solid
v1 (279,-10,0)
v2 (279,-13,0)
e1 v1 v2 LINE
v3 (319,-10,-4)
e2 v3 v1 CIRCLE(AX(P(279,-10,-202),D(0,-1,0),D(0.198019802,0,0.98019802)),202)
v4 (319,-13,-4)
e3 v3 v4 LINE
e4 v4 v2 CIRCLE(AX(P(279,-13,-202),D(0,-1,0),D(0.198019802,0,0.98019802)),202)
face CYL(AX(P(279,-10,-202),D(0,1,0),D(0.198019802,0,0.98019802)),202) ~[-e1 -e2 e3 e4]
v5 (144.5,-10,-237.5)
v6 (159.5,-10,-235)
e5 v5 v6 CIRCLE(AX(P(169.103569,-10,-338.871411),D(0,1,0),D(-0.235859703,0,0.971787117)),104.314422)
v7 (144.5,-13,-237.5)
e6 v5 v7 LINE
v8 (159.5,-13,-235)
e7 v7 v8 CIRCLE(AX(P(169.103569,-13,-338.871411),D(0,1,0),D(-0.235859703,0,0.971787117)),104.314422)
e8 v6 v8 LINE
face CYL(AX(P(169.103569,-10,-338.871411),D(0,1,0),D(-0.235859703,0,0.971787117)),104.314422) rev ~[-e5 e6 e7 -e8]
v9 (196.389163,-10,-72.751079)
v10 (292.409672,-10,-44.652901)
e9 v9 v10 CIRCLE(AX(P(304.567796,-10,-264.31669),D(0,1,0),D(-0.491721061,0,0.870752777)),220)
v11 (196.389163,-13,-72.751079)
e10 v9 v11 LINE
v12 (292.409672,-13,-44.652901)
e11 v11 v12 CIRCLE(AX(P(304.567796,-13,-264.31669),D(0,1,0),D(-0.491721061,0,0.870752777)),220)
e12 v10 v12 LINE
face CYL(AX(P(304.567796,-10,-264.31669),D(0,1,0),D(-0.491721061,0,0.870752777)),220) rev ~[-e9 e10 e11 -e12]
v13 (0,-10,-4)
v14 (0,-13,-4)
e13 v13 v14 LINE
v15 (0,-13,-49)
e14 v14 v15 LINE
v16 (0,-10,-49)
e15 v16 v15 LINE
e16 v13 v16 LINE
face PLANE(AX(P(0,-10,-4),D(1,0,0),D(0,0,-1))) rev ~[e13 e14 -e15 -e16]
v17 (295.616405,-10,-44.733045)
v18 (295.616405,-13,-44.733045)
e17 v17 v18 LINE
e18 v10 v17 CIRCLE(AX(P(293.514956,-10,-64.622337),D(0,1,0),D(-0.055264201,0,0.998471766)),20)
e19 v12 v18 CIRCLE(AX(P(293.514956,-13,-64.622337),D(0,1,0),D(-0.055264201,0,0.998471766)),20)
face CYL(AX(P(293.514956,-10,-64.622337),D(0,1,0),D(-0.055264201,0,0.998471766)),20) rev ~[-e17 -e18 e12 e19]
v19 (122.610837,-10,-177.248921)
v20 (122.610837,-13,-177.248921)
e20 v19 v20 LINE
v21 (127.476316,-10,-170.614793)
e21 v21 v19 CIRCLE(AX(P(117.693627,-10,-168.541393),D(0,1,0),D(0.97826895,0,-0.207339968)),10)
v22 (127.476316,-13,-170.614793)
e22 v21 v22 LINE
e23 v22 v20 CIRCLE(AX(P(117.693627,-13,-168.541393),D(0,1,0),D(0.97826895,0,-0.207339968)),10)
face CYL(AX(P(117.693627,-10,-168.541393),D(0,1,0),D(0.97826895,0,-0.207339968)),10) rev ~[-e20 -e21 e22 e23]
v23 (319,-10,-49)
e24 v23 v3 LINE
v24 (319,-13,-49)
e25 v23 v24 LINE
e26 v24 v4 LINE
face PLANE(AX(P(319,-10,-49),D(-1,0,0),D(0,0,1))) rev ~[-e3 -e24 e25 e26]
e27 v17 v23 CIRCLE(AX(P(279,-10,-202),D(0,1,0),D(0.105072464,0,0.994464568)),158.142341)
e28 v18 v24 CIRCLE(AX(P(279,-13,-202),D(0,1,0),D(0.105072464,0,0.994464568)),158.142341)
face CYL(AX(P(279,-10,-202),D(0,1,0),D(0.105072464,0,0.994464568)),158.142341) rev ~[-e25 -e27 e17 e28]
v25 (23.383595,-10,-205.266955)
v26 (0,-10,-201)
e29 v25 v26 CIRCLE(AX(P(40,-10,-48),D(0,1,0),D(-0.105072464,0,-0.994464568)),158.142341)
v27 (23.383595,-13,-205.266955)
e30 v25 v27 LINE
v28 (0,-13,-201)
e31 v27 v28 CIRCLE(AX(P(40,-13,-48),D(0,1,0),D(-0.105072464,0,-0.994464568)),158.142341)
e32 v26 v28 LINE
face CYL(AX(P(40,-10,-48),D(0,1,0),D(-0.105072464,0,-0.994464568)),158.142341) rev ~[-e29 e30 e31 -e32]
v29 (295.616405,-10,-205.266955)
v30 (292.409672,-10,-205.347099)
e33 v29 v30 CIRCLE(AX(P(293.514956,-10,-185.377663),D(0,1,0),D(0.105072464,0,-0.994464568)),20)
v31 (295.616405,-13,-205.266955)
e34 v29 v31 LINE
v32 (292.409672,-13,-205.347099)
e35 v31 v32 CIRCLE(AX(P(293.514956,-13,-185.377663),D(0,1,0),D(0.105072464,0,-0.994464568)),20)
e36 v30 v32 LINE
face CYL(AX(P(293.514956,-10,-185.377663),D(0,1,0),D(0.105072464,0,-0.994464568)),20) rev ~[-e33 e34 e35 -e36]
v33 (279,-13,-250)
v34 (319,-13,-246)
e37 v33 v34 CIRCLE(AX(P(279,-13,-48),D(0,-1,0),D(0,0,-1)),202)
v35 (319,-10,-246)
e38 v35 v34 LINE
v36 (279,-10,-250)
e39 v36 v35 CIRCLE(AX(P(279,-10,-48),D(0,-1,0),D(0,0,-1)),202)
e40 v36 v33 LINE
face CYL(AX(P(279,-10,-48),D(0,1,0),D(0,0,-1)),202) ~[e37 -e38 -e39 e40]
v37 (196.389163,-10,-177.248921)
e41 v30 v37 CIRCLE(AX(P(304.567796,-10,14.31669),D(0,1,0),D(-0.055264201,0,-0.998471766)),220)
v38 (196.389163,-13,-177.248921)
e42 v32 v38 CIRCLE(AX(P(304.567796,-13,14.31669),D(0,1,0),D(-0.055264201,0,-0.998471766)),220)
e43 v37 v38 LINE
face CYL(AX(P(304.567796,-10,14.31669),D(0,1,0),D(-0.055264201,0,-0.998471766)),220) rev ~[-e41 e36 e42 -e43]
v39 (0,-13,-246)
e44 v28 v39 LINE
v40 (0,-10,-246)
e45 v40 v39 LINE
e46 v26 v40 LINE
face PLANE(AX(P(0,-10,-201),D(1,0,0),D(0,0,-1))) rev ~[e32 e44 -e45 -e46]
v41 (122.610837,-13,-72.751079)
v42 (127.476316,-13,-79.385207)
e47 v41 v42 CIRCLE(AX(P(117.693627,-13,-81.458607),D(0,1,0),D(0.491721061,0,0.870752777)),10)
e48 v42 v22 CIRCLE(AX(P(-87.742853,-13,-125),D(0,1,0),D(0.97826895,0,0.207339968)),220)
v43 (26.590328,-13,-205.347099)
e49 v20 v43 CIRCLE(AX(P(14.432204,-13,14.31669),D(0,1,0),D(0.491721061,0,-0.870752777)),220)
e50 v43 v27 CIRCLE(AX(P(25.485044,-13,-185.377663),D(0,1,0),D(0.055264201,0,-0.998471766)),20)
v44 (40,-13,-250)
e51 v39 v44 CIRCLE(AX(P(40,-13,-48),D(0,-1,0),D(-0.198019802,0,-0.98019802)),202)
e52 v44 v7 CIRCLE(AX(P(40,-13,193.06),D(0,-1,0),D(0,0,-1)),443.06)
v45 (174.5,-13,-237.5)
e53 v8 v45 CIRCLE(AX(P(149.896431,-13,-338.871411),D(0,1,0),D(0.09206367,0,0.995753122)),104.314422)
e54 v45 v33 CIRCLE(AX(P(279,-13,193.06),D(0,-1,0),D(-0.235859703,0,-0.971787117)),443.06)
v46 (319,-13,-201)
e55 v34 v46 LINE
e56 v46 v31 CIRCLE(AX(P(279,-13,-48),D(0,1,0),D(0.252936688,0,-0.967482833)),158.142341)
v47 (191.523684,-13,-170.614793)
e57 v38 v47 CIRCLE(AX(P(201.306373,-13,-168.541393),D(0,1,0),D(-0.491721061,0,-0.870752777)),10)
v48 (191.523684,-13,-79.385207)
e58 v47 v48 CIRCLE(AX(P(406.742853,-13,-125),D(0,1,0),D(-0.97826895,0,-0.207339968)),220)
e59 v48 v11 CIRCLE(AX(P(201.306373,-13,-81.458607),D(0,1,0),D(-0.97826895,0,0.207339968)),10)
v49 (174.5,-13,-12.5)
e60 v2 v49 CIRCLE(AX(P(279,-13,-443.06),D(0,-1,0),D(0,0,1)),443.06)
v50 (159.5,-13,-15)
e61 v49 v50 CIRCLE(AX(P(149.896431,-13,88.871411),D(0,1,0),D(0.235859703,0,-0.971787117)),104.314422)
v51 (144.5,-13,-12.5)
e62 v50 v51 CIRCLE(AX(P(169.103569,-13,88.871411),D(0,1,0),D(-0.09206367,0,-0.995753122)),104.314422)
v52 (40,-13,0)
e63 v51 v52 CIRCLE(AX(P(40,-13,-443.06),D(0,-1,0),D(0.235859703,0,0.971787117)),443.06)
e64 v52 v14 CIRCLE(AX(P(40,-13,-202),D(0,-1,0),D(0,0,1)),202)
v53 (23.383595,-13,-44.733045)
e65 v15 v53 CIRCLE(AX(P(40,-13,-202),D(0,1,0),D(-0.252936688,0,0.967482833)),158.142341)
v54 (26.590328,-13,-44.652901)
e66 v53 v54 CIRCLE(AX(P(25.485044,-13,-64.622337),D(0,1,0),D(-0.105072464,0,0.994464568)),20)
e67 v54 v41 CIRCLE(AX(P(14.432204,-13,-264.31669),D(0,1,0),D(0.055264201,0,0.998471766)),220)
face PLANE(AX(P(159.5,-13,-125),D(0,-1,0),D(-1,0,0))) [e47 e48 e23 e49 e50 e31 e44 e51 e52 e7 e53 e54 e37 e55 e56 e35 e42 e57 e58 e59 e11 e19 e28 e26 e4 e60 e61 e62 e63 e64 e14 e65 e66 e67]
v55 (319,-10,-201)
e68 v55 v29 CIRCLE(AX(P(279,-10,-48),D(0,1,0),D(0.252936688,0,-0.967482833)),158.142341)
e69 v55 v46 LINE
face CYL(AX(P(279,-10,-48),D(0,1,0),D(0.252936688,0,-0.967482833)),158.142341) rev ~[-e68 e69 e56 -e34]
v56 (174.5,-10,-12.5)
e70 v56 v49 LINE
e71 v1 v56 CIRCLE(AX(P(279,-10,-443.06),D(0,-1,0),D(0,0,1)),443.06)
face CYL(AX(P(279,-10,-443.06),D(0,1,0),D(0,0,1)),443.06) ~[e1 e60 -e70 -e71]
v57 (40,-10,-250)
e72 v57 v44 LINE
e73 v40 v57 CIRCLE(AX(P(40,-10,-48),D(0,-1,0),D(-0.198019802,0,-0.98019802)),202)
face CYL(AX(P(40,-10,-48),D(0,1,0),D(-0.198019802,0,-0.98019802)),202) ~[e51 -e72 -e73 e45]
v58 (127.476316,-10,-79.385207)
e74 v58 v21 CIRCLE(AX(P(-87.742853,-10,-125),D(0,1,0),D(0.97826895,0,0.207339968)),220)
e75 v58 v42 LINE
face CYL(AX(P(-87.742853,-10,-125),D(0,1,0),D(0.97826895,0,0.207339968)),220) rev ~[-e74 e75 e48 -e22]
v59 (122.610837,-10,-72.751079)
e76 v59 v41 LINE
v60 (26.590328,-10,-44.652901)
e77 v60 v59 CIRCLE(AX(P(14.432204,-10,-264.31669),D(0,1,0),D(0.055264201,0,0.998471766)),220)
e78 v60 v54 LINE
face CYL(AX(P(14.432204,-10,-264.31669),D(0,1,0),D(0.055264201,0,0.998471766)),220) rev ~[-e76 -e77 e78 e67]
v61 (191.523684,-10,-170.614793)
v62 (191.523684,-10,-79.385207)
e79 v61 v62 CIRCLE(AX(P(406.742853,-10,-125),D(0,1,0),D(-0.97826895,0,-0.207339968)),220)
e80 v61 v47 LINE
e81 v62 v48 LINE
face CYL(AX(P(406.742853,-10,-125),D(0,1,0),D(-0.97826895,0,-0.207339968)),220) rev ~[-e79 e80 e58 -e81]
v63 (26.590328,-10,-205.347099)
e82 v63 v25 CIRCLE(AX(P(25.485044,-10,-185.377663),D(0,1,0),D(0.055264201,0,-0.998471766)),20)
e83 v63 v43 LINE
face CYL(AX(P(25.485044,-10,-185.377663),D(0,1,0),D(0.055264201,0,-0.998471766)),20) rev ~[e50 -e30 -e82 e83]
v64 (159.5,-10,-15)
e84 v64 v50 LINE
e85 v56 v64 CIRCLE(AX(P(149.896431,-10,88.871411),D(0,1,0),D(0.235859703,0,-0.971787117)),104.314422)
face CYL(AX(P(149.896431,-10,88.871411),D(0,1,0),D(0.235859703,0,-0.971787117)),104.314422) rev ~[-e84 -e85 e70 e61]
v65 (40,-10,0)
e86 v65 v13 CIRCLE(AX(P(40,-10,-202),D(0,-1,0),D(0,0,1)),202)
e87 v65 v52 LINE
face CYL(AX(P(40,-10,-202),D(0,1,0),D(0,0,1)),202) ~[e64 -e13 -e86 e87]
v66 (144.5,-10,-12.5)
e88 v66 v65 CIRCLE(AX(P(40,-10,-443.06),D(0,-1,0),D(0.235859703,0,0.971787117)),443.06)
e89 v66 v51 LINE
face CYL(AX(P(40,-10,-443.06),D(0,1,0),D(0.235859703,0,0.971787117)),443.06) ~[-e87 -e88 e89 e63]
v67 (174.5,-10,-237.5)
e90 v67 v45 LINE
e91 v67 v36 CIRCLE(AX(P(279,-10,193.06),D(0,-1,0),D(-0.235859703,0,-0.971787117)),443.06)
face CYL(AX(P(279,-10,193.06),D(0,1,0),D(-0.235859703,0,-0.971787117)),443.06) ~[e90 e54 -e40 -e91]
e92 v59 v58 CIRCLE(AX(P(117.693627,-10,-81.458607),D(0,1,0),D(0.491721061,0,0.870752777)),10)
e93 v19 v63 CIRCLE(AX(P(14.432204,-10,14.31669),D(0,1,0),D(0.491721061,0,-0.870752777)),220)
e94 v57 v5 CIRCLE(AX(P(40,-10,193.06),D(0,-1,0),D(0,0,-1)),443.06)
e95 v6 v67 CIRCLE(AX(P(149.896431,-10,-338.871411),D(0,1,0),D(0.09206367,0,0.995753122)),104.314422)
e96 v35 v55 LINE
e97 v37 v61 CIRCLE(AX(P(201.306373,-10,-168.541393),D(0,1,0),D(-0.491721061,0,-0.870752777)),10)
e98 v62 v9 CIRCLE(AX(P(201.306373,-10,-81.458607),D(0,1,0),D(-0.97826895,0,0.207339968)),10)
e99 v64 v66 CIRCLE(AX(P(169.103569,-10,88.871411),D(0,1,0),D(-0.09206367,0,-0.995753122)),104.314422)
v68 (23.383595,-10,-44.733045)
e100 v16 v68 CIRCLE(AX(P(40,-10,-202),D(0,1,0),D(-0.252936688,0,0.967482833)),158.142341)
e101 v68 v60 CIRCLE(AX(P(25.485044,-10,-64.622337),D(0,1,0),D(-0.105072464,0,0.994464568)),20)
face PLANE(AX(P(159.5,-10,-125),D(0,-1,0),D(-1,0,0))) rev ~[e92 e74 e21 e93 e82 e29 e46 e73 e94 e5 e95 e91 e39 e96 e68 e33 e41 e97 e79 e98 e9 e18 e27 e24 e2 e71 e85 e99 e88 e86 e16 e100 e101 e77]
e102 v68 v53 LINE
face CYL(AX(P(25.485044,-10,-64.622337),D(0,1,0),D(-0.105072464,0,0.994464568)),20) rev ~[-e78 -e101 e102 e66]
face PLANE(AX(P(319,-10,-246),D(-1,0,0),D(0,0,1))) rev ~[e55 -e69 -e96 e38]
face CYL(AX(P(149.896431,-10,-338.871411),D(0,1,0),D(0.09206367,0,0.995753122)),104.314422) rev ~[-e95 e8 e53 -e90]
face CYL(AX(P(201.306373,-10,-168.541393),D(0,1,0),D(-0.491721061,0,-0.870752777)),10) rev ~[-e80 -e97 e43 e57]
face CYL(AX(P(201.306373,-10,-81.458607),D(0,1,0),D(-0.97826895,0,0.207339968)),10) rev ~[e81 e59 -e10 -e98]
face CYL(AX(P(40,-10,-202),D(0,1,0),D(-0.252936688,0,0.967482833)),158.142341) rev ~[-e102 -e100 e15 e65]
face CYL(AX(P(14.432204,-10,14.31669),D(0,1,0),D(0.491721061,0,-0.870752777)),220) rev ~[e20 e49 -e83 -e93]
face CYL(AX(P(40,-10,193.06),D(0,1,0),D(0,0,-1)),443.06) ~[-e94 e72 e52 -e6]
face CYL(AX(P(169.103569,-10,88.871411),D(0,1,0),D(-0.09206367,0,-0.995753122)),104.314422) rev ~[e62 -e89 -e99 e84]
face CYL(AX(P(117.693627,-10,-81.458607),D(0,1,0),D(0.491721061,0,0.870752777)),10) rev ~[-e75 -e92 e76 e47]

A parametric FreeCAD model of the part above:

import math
import FreeCAD as App
import Part
import Sketcher
from FreeCAD import Vector

doc = App.newDocument("Part")
body = doc.addObject("PartDesign::Body", "Body")

# Sketch on XZ plane
sketch1 = doc.addObject("Sketcher::SketchObject", "Sketch")
body.addObject(sketch1)
sketch1.AttachmentSupport = (doc.XZ_Plane, [""])
sketch1.MapMode = "FlatFace"
sketch1.AttachmentOffset = App.Placement(Vector(0, 0, 10), App.Rotation())
sketch1.addGeometry([
    Part.LineSegment(Vector(319, -201, 0), Vector(319, -246, 0)),  # 0
    Part.ArcOfCircle(Part.Circle(Vector(279, -48, 0), Vector(0, 0, 1), 202), math.radians(-90), math.radians(-78.58)),  # 1
    Part.ArcOfCircle(Part.Circle(Vector(279, 193.1, 0), Vector(0, 0, 1), 443.1), math.radians(-103.64), math.radians(-90)),  # 2
    Part.ArcOfCircle(Part.Circle(Vector(149.9, -338.9, 0), Vector(0, 0, 1), 104.3), math.radians(76.36), math.radians(84.72)),  # 3
    Part.ArcOfCircle(Part.Circle(Vector(169.1, -338.9, 0), Vector(0, 0, 1), 104.3), math.radians(95.28), math.radians(103.64)),  # 4
    Part.ArcOfCircle(Part.Circle(Vector(40, 193.1, 0), Vector(0, 0, 1), 443.1), math.radians(-90), math.radians(-76.36)),  # 5
    Part.ArcOfCircle(Part.Circle(Vector(40, -48, 0), Vector(0, 0, 1), 202), math.radians(-101.42), math.radians(-90)),  # 6
    Part.LineSegment(Vector(0, -246, 0), Vector(0, -201, 0)),  # 7
    Part.ArcOfCircle(Part.Circle(Vector(40, -48, 0), Vector(0, 0, 1), 158.1), math.radians(-104.65), math.radians(-96.03)),  # 8
    Part.ArcOfCircle(Part.Circle(Vector(25.5, -185.4, 0), Vector(0, 0, 1), 20), math.radians(-96.03), math.radians(-86.83)),  # 9
    Part.ArcOfCircle(Part.Circle(Vector(14.4, 14.3, 0), Vector(0, 0, 1), 220), math.radians(-87), math.radians(-61)),  # 10
    Part.ArcOfCircle(Part.Circle(Vector(117.7, -168.5, 0), Vector(0, 0, 1), 10), math.radians(-61), math.radians(-12)),  # 11
    Part.ArcOfCircle(Part.Circle(Vector(-87.7, -125, 0), Vector(0, 0, 1), 220), math.radians(-12), math.radians(12)),  # 12
    Part.ArcOfCircle(Part.Circle(Vector(117.7, -81.5, 0), Vector(0, 0, 1), 10), math.radians(12), math.radians(61)),  # 13
    Part.ArcOfCircle(Part.Circle(Vector(14.4, -264.3, 0), Vector(0, 0, 1), 220), math.radians(61), math.radians(87)),  # 14
    Part.ArcOfCircle(Part.Circle(Vector(25.5, -64.6, 0), Vector(0, 0, 1), 20), math.radians(86.83), math.radians(96.03)),  # 15
    Part.ArcOfCircle(Part.Circle(Vector(40, -202, 0), Vector(0, 0, 1), 158.1), math.radians(96.03), math.radians(104.65)),  # 16
    Part.LineSegment(Vector(0, -49, 0), Vector(0, -4, 0)),  # 17
    Part.ArcOfCircle(Part.Circle(Vector(40, -202, 0), Vector(0, 0, 1), 202), math.radians(90), math.radians(101.42)),  # 18
    Part.ArcOfCircle(Part.Circle(Vector(40, -443.1, 0), Vector(0, 0, 1), 443.1), math.radians(76.36), math.radians(90)),  # 19
    Part.ArcOfCircle(Part.Circle(Vector(169.1, 88.9, 0), Vector(0, 0, 1), 104.3), math.radians(-103.64), math.radians(-95.28)),  # 20
    Part.ArcOfCircle(Part.Circle(Vector(149.9, 88.9, 0), Vector(0, 0, 1), 104.3), math.radians(-84.72), math.radians(-76.36)),  # 21
    Part.ArcOfCircle(Part.Circle(Vector(279, -443.1, 0), Vector(0, 0, 1), 443.1), math.radians(90), math.radians(103.64)),  # 22
    Part.ArcOfCircle(Part.Circle(Vector(279, -202, 0), Vector(0, 0, 1), 202), math.radians(78.58), math.radians(90)),  # 23
    Part.LineSegment(Vector(319, -4, 0), Vector(319, -49, 0)),  # 24
    Part.ArcOfCircle(Part.Circle(Vector(279, -202, 0), Vector(0, 0, 1), 158.1), math.radians(75.35), math.radians(83.97)),  # 25
    Part.ArcOfCircle(Part.Circle(Vector(293.5, -64.6, 0), Vector(0, 0, 1), 20), math.radians(83.97), math.radians(93.17)),  # 26
    Part.ArcOfCircle(Part.Circle(Vector(304.6, -264.3, 0), Vector(0, 0, 1), 220), math.radians(93), math.radians(119)),  # 27
    Part.ArcOfCircle(Part.Circle(Vector(201.3, -81.5, 0), Vector(0, 0, 1), 10), math.radians(119), math.radians(168)),  # 28
    Part.ArcOfCircle(Part.Circle(Vector(406.7, -125, 0), Vector(0, 0, 1), 220), math.radians(168), math.radians(192)),  # 29
    Part.ArcOfCircle(Part.Circle(Vector(201.3, -168.5, 0), Vector(0, 0, 1), 10), math.radians(-168), math.radians(-119)),  # 30
    Part.ArcOfCircle(Part.Circle(Vector(304.6, 14.3, 0), Vector(0, 0, 1), 220), math.radians(-119), math.radians(-93)),  # 31
    Part.ArcOfCircle(Part.Circle(Vector(293.5, -185.4, 0), Vector(0, 0, 1), 20), math.radians(-93.17), math.radians(-83.97)),  # 32
    Part.ArcOfCircle(Part.Circle(Vector(279, -48, 0), Vector(0, 0, 1), 158.1), math.radians(-83.97), math.radians(-75.35)),  # 33
], False)
sketch1.addConstraint([
    Sketcher.Constraint("Coincident", 0, 2, 1, 2),
    Sketcher.Constraint("Tangent", 1, 1, 2, 2),
    Sketcher.Constraint("Tangent", 2, 1, 3, 1),
    Sketcher.Constraint("Coincident", 3, 2, 4, 1),
    Sketcher.Constraint("Tangent", 4, 2, 5, 2),
    Sketcher.Constraint("Tangent", 5, 1, 6, 2),
    Sketcher.Constraint("Coincident", 6, 1, 7, 1),
    Sketcher.Constraint("Coincident", 7, 2, 8, 1),
    Sketcher.Constraint("Tangent", 8, 2, 9, 1),
    Sketcher.Constraint("Tangent", 9, 2, 10, 1),
    Sketcher.Constraint("Tangent", 10, 2, 11, 1),
    Sketcher.Constraint("Tangent", 11, 2, 12, 1),
    Sketcher.Constraint("Tangent", 12, 2, 13, 1),
    Sketcher.Constraint("Tangent", 13, 2, 14, 1),
    Sketcher.Constraint("Tangent", 14, 2, 15, 1),
    Sketcher.Constraint("Tangent", 15, 2, 16, 1),
    Sketcher.Constraint("Coincident", 16, 2, 17, 1),
    Sketcher.Constraint("Coincident", 17, 2, 18, 2),
    Sketcher.Constraint("Tangent", 18, 1, 19, 2),
    Sketcher.Constraint("Tangent", 19, 1, 20, 1),
    Sketcher.Constraint("Coincident", 20, 2, 21, 1),
    Sketcher.Constraint("Tangent", 21, 2, 22, 2),
    Sketcher.Constraint("Tangent", 22, 1, 23, 2),
    Sketcher.Constraint("Coincident", 23, 1, 24, 1),
    Sketcher.Constraint("Coincident", 24, 2, 25, 1),
    Sketcher.Constraint("Tangent", 25, 2, 26, 1),
    Sketcher.Constraint("Tangent", 26, 2, 27, 1),
    Sketcher.Constraint("Tangent", 27, 2, 28, 1),
    Sketcher.Constraint("Tangent", 28, 2, 29, 1),
    Sketcher.Constraint("Tangent", 29, 2, 30, 1),
    Sketcher.Constraint("Tangent", 30, 2, 31, 1),
    Sketcher.Constraint("Tangent", 31, 2, 32, 1),
    Sketcher.Constraint("Tangent", 32, 2, 33, 1),
    Sketcher.Constraint("Coincident", 33, 2, 0, 1),
    Sketcher.Constraint("Vertical", 0),
    Sketcher.Constraint("Vertical", 7),
    Sketcher.Constraint("Vertical", 17),
    Sketcher.Constraint("Vertical", 24),
    Sketcher.Constraint("Coincident", 8, 3, 6, 3),
    Sketcher.Constraint("Coincident", 18, 3, 16, 3),
    Sketcher.Constraint("Coincident", 25, 3, 23, 3),
    Sketcher.Constraint("Coincident", 33, 3, 1, 3),
    Sketcher.Constraint("Equal", 3, 4),
    Sketcher.Constraint("Equal", 2, 5),
    Sketcher.Constraint("Equal", 1, 6),
    Sketcher.Constraint("Equal", 10, 12),
    Sketcher.Constraint("Equal", 11, 13),
    Sketcher.Constraint("Equal", 12, 14),
    Sketcher.Constraint("Equal", 9, 15),
    Sketcher.Constraint("Equal", 8, 16),
    Sketcher.Constraint("Equal", 6, 18),
    Sketcher.Constraint("Equal", 5, 19),
    Sketcher.Constraint("Equal", 4, 20),
    Sketcher.Constraint("Equal", 20, 21),
    Sketcher.Constraint("Equal", 19, 22),
    Sketcher.Constraint("Equal", 18, 23),
    Sketcher.Constraint("Equal", 16, 25),
    Sketcher.Constraint("Equal", 15, 26),
    Sketcher.Constraint("Equal", 14, 27),
    Sketcher.Constraint("Equal", 13, 28),
    Sketcher.Constraint("Equal", 27, 29),
    Sketcher.Constraint("Equal", 28, 30),
    Sketcher.Constraint("Equal", 29, 31),
    Sketcher.Constraint("Equal", 26, 32),
    Sketcher.Constraint("Equal", 25, 33),
    Sketcher.Constraint("PointOnObject", 6, 1, -2),
    Sketcher.Constraint("PointOnObject", 16, 2, -2),
    Sketcher.Constraint("PointOnObject", 18, 1, -1),
    Sketcher.Constraint("PointOnObject", 22, 1, -1),
    Sketcher.Constraint("Horizontal", 3, 3, 4, 3),
    Sketcher.Constraint("Horizontal", 2, 3, 5, 3),
    Sketcher.Constraint("Horizontal", 20, 3, 21, 3),
    Sketcher.Constraint("Horizontal", 15, 3, 26, 3),
    Sketcher.Constraint("Horizontal", 14, 3, 27, 3),
    Sketcher.Constraint("Horizontal", 13, 3, 28, 3),
    Sketcher.Constraint("Horizontal", 12, 3, 29, 3),
    Sketcher.Constraint("Horizontal", 11, 3, 30, 3),
    Sketcher.Constraint("Horizontal", 10, 3, 31, 3),
    Sketcher.Constraint("Horizontal", 9, 3, 32, 3),
    Sketcher.Constraint("Horizontal", 0, 2, 6, 1),
    Sketcher.Constraint("Horizontal", 17, 2, 23, 1),
    Sketcher.Constraint("Vertical", 1, 3, 2, 3),
    Sketcher.Constraint("Vertical", 5, 3, 6, 3),
    Sketcher.Constraint("Vertical", 11, 3, 13, 3),
    Sketcher.Constraint("Vertical", 10, 3, 14, 3),
    Sketcher.Constraint("Vertical", 9, 3, 15, 3),
    Sketcher.Constraint("Vertical", 8, 3, 16, 3),
    Sketcher.Constraint("Vertical", 18, 3, 19, 3),
    Sketcher.Constraint("Vertical", 4, 3, 20, 3),
    Sketcher.Constraint("Vertical", 3, 3, 21, 3),
    Sketcher.Constraint("Radius", 1, 202.0),
    Sketcher.Constraint("Radius", 9, 20.0),
    Sketcher.Constraint("Radius", 10, 220.0),
    Sketcher.Constraint("Radius", 11, 10.0),
    Sketcher.Constraint("DistanceY", 0, 2, 0, 1, 45.0),
    Sketcher.Constraint("Radius", 2, 443.06),
    Sketcher.Constraint("DistanceX", -1, 1, 1, 3, 279.0),
    Sketcher.Constraint("DistanceY", 1, 3, -1, 1, 48.0),
    Sketcher.Constraint("DistanceX", -1, 1, 5, 3, 40.0),
    Sketcher.Constraint("DistanceY", 3, 2, -1, 1, 235.0),
    Sketcher.Constraint("Radius", 3, 104.314422),
    Sketcher.Constraint("DistanceY", 9, 2, -1, 1, 205.347099),
    Sketcher.Constraint("DistanceY", -1, 1, 10, 3, 14.31669),
    Sketcher.Constraint("DistanceY", 10, 2, -1, 1, 177.248921),
])
pad1 = doc.addObject("PartDesign::Pad", "Pad")
body.addObject(pad1)
pad1.Profile = sketch1
pad1.Length = 3

doc.recompute()
